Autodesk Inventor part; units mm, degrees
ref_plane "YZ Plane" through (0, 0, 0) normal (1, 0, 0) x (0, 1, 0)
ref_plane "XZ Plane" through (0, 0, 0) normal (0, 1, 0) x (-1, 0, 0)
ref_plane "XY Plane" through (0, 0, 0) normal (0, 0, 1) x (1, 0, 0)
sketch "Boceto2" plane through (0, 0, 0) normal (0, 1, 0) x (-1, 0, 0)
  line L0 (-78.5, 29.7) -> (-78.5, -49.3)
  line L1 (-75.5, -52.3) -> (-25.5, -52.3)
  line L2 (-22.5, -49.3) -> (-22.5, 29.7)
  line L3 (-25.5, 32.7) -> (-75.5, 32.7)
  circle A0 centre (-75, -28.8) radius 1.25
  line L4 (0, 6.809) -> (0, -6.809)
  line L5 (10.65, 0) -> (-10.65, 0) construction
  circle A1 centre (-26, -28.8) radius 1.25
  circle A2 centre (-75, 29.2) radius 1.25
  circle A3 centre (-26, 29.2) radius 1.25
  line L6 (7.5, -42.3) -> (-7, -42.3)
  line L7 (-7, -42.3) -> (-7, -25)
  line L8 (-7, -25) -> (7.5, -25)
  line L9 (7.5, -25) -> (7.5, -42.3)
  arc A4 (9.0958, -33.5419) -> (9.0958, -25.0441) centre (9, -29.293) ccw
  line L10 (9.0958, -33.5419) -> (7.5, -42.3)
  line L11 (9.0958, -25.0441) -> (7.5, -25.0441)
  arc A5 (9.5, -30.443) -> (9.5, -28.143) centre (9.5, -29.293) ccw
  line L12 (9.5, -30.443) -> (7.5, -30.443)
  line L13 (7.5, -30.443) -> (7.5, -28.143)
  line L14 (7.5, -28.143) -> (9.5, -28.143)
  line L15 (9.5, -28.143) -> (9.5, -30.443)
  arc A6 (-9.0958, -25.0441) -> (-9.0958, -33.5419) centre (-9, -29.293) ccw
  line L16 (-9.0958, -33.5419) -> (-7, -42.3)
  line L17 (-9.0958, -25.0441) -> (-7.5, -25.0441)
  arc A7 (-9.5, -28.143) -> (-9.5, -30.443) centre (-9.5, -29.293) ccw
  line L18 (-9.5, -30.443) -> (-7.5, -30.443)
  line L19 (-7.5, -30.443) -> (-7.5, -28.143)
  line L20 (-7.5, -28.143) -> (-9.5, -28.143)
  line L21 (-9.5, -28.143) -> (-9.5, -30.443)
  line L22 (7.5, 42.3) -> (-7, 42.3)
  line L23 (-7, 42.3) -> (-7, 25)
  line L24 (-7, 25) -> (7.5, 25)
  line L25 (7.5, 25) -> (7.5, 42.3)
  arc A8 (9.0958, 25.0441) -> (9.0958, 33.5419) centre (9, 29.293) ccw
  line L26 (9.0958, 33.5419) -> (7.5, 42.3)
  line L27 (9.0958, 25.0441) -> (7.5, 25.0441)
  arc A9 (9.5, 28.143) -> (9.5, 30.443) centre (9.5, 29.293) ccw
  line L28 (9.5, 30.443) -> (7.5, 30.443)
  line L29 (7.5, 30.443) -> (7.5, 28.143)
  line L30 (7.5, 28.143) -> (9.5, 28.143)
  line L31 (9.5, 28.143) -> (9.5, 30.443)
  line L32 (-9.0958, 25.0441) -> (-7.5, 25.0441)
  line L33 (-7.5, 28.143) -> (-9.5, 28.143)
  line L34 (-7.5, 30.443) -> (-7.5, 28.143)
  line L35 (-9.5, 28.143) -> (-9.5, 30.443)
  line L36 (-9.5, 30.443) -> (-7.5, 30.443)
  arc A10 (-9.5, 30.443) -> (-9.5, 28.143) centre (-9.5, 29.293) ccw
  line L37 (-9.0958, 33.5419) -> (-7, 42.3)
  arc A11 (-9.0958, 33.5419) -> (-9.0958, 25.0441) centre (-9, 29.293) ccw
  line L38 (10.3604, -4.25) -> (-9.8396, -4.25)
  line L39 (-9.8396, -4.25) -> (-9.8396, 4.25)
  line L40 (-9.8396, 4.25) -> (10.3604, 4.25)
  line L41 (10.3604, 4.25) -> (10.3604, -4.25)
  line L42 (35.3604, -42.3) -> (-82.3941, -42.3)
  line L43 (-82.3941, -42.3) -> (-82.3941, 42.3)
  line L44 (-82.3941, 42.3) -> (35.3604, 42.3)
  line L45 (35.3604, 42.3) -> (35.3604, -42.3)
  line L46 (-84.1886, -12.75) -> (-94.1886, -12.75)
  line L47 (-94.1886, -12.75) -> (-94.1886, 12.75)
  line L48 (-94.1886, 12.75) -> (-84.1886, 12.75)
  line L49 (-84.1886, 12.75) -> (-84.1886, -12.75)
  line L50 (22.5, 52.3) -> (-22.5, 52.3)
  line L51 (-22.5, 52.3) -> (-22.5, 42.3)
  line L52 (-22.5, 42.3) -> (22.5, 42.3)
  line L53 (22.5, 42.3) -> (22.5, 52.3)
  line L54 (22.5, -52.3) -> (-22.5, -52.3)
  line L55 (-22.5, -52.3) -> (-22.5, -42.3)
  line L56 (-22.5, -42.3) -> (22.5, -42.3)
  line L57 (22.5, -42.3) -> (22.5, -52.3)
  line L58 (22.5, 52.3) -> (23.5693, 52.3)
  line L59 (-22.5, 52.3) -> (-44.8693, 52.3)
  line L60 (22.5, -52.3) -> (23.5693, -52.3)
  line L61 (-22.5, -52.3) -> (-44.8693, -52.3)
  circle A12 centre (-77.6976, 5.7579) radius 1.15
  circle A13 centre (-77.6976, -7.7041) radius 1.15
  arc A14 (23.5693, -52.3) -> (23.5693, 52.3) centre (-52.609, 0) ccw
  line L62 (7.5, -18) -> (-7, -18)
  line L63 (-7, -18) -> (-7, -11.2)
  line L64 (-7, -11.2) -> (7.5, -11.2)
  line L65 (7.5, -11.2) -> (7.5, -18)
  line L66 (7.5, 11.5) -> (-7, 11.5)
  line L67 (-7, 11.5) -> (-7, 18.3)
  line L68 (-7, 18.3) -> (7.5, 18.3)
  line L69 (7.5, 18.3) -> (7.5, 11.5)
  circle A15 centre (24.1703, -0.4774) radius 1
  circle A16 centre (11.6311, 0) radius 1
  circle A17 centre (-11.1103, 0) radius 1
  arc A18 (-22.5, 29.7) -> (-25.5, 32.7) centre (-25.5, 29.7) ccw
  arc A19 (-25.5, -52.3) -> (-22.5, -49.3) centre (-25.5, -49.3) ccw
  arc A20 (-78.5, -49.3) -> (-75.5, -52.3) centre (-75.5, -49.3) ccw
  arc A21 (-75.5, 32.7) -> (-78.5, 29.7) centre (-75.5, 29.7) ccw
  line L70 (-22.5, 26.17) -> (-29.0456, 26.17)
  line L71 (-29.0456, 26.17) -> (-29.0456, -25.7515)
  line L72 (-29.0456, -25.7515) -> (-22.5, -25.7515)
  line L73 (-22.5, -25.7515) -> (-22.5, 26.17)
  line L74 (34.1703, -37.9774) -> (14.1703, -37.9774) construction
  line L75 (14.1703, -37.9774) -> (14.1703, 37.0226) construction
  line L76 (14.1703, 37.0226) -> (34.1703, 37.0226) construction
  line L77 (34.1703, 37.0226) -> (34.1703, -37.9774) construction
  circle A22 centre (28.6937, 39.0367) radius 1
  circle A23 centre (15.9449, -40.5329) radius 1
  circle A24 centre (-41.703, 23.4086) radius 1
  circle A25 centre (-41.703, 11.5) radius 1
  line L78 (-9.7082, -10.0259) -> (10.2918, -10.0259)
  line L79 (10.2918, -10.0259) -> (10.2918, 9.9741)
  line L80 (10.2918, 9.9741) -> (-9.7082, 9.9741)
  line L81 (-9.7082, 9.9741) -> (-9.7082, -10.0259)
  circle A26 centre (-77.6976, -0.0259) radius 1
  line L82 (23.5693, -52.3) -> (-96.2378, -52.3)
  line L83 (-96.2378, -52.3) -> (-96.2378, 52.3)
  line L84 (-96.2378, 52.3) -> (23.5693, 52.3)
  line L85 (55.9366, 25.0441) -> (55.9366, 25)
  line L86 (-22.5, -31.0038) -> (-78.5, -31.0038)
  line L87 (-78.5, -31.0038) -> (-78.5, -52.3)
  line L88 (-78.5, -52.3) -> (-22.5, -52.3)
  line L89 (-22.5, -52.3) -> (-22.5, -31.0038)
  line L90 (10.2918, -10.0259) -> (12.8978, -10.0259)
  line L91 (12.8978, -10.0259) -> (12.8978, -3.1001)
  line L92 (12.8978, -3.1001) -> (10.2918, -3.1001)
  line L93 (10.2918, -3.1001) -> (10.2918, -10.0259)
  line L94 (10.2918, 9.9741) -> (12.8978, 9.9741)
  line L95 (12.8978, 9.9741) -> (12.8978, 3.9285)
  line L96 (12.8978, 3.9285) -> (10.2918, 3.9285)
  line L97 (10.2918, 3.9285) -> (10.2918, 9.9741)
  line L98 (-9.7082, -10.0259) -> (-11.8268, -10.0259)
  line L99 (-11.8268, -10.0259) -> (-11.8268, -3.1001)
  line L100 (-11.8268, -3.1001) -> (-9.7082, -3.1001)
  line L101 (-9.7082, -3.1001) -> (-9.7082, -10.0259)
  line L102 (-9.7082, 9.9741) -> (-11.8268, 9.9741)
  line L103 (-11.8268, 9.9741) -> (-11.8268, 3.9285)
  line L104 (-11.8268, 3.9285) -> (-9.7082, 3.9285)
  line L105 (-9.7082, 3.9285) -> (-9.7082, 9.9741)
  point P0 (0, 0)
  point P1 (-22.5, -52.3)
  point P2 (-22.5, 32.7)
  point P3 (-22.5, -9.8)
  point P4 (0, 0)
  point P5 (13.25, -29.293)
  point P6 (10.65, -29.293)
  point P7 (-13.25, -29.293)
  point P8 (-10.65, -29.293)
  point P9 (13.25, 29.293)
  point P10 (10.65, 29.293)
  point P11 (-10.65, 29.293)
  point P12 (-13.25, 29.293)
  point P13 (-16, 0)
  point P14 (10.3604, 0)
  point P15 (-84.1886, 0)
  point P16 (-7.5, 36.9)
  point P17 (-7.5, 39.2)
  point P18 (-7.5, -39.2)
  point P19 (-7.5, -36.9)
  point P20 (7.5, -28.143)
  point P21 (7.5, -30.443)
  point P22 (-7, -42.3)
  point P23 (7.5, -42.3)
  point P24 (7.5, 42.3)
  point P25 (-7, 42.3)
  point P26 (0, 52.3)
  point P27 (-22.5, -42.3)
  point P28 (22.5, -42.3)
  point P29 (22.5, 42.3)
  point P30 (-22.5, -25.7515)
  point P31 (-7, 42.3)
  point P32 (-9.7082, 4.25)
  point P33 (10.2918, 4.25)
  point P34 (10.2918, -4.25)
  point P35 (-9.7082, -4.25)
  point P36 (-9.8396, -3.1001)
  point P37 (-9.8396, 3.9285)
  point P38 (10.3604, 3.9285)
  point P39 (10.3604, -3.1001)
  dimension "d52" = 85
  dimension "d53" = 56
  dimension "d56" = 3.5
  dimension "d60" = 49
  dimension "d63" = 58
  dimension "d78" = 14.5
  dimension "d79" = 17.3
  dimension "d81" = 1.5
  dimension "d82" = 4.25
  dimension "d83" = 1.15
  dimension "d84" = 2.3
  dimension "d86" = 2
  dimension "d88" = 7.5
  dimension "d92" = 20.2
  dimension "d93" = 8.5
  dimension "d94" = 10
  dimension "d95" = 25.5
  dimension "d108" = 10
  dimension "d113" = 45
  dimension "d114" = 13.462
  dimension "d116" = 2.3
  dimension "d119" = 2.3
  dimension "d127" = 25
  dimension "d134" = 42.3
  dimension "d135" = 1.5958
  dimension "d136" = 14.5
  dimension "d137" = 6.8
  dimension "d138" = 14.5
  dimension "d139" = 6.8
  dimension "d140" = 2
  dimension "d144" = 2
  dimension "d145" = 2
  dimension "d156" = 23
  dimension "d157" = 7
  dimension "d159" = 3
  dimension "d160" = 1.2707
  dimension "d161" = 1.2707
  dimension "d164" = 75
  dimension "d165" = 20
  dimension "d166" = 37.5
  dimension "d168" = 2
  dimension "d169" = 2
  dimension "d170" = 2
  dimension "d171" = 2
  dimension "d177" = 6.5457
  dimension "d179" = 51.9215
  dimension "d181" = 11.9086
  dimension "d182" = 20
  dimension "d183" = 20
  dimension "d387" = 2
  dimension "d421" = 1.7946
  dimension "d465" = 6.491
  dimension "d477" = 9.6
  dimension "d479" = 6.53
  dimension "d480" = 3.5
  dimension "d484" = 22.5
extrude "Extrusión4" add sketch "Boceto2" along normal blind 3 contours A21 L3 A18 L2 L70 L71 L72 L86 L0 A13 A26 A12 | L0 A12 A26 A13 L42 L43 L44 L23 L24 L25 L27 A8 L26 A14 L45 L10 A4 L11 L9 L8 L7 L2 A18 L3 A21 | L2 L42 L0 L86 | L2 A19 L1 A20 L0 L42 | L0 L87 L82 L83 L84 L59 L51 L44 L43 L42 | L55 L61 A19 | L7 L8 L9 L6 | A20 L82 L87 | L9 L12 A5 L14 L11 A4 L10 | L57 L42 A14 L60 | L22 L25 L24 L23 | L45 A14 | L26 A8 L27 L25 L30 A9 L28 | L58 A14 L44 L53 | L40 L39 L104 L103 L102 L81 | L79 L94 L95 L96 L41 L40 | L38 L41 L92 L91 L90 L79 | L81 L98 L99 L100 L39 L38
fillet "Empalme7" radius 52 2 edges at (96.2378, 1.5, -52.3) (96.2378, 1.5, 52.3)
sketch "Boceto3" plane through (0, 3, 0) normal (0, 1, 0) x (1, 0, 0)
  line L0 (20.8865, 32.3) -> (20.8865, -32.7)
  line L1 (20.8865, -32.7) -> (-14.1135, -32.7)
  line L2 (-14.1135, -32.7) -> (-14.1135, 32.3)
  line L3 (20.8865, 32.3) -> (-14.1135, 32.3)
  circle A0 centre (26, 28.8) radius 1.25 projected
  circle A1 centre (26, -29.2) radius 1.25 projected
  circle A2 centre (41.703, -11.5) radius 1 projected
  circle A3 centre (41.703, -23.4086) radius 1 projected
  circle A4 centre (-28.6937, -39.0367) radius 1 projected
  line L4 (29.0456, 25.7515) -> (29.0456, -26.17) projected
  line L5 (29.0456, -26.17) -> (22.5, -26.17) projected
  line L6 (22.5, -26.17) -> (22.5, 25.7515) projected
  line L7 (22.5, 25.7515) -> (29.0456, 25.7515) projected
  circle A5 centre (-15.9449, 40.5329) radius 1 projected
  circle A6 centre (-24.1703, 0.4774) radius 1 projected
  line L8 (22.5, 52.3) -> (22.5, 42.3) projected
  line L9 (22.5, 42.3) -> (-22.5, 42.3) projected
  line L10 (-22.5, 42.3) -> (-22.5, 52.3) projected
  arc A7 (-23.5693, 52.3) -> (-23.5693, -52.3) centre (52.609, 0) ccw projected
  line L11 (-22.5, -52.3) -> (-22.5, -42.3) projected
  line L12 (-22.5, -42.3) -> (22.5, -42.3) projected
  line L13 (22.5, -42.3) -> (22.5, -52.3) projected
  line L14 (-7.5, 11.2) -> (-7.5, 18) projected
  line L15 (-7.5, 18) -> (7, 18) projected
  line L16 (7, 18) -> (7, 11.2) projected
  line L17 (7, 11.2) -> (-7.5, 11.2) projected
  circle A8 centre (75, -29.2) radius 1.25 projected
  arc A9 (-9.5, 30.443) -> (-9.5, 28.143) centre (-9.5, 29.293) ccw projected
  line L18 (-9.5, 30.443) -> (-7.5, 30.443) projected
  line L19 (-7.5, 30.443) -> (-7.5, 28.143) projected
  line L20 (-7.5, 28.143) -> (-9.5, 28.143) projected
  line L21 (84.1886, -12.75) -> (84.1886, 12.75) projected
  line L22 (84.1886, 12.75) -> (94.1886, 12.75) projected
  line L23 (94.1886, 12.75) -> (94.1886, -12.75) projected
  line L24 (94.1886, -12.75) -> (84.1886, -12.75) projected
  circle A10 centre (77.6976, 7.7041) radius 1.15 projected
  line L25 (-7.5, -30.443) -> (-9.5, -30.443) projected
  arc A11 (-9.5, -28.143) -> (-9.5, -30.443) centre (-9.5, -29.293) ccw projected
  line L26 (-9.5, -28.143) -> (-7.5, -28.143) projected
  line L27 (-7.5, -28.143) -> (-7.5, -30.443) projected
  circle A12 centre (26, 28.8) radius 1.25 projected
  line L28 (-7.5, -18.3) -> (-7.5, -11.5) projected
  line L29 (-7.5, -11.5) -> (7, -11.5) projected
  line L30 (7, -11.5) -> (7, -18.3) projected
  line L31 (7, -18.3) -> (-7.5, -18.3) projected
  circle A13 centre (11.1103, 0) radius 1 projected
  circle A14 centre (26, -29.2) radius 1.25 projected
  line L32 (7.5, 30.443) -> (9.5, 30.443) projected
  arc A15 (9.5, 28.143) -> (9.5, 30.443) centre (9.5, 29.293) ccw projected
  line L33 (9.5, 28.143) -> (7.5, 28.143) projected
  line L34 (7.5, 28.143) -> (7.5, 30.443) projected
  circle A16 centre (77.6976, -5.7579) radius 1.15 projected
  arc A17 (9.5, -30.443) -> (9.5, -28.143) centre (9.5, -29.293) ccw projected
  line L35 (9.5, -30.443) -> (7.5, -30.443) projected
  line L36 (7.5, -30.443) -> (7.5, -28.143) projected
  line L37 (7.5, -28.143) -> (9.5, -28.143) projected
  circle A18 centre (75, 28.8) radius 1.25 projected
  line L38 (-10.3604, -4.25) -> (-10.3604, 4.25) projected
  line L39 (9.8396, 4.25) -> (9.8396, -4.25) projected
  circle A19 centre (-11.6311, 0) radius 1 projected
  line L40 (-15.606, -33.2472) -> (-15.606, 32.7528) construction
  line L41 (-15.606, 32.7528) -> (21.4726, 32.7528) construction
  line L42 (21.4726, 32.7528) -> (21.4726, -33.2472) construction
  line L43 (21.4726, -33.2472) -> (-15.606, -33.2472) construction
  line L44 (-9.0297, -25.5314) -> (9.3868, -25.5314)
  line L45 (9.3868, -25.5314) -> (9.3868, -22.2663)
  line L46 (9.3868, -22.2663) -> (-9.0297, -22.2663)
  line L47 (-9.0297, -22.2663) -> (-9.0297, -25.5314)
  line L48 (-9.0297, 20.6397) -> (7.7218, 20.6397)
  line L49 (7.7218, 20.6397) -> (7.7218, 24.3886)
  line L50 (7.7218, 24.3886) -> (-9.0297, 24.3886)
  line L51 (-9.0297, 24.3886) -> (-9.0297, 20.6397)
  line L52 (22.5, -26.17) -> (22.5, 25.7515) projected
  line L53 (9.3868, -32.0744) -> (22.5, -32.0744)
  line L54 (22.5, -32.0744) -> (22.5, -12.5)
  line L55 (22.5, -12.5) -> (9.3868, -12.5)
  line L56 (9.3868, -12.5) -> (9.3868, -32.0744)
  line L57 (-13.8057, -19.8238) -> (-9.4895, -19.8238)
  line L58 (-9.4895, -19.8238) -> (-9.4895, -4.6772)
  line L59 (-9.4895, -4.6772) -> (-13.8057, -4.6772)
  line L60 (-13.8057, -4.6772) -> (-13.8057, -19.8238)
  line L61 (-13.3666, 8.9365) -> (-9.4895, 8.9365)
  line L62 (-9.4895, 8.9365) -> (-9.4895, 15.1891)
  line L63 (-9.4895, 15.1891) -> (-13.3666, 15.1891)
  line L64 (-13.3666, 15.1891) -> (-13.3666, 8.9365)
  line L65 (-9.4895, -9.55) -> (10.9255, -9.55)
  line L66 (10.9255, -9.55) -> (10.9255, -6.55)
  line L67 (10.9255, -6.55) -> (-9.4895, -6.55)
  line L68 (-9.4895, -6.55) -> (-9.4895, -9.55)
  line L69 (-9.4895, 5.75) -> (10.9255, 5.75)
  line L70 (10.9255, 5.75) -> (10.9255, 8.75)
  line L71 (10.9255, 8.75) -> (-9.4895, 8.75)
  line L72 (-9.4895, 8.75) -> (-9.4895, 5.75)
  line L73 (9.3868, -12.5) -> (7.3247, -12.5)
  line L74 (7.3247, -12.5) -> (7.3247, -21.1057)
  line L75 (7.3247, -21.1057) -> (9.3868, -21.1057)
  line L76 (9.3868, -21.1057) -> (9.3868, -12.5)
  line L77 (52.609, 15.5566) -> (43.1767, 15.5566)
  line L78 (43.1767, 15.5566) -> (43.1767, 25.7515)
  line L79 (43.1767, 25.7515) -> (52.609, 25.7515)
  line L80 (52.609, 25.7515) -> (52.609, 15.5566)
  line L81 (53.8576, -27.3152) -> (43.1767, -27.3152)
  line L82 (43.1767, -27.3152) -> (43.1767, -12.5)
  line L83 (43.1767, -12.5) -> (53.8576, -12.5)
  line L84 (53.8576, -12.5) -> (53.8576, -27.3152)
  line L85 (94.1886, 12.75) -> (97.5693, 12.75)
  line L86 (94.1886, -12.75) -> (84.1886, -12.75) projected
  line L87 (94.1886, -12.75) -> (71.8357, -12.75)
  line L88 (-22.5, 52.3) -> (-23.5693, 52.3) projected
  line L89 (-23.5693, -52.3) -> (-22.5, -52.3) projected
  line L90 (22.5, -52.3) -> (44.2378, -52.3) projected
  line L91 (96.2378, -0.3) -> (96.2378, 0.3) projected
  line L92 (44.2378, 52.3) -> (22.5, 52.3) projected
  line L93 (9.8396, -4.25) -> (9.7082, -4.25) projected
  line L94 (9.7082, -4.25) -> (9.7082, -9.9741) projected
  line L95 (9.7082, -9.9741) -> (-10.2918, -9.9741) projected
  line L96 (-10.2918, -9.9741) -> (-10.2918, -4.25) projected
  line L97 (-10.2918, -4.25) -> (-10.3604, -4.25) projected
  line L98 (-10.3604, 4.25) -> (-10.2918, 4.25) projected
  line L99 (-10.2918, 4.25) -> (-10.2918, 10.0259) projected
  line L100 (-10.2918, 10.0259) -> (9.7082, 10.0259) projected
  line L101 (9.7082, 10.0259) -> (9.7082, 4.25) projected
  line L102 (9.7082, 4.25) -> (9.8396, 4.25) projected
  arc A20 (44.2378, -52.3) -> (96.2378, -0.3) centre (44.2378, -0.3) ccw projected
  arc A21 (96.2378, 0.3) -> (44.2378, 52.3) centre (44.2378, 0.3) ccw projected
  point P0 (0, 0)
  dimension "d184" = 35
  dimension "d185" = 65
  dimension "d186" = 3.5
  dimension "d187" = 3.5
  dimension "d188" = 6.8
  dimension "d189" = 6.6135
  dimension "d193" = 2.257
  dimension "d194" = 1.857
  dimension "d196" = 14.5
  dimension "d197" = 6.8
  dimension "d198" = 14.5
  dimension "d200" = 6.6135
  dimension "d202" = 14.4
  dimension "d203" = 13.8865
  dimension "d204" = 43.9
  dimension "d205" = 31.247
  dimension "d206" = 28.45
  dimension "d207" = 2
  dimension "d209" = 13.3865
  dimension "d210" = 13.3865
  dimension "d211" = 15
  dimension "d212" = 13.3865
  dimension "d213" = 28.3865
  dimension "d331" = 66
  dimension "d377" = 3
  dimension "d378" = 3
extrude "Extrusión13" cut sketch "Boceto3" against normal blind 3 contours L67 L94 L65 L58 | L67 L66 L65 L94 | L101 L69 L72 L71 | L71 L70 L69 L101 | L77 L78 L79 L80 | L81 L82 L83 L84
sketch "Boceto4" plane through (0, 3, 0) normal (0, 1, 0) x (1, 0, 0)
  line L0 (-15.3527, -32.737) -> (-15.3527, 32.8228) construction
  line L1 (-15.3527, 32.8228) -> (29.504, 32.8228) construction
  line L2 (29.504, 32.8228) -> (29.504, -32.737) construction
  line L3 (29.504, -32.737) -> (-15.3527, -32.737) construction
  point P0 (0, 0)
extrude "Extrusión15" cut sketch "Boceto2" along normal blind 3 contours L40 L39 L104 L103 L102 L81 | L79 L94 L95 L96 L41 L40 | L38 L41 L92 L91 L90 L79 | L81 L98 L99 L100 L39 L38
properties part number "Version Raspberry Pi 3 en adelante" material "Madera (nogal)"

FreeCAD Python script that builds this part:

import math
import FreeCAD as App
import Part
import Sketcher
Q = App.Units.Quantity


def edges_at(feature, points):
    """Names of the edges that pass closest to the given points."""
    edges = feature.Shape.Edges
    near = lambda p: min(range(len(edges)), key=lambda i: edges[i].distToShape(Part.Vertex(*p))[0])
    return sorted({f"Edge{near(p) + 1}" for p in points})

doc = App.newDocument("Part")
params = doc.addObject("Spreadsheet::Sheet", "Params")
for row, (alias, value) in enumerate([
    ("sketch1_diameter", "2 mm"),
    ("sketch1_diameter2", "2.3 mm"),
    ("sketch1_width", "45 mm"),
    ("sketch1_width2", "2 mm"),
    ("sketch1_width3", "20 mm"),
    ("pad1_length", "3 mm"),
    ("fillet_radius", "52 mm"),
    ("sketch2_height", "3 mm"),
    ("pocket1_length", "3 mm"),
    ("sketch3_height", "1.15 mm"),
    ("pocket2_length", "3 mm"),
], start=1):
    params.set(f"A{row}", alias)
    params.set(f"B{row}", "=" + value)
    params.setAlias(f"B{row}", alias)

body = doc.addObject("PartDesign::Body", "Body")

sketch1 = body.newObject("Sketcher::SketchObject", "Sketch")
sketch1.AttachmentSupport = (doc.getObject("XZ_Plane"), [""])
sketch1.MapMode = "FlatFace"
sketch1.addGeometry([
    Part.LineSegment(App.Vector(22.5, 42.3, 0), App.Vector(22.5, 52.3, 0)),
    Part.LineSegment(App.Vector(22.5, 52.3, 0), App.Vector(96.24, 52.3, 0)),
    Part.LineSegment(App.Vector(96.24, 52.3, 0), App.Vector(96.24, -52.3, 0)),
    Part.LineSegment(App.Vector(96.24, -52.3, 0), App.Vector(22.5, -52.3, 0)),
    Part.LineSegment(App.Vector(22.5, -52.3, 0), App.Vector(22.5, -42.3, 0)),
    Part.LineSegment(App.Vector(22.5, -42.3, 0), App.Vector(-22.5, -42.3, 0)),
    Part.LineSegment(App.Vector(-22.5, -42.3, 0), App.Vector(-22.5, -52.3, 0)),
    Part.LineSegment(App.Vector(-22.5, -52.3, 0), App.Vector(-23.57, -52.3, 0)),
    Part.ArcOfCircle(Part.Circle(App.Vector(52.61, 0, 0), App.Vector(0, 0, 1), 92.4), math.radians(146), math.radians(214)),
    Part.LineSegment(App.Vector(-23.57, 52.3, 0), App.Vector(-22.5, 52.3, 0)),
    Part.LineSegment(App.Vector(-22.5, 52.3, 0), App.Vector(-22.5, 42.3, 0)),
    Part.LineSegment(App.Vector(-22.5, 42.3, 0), App.Vector(22.5, 42.3, 0)),
    Part.LineSegment(App.Vector(29.05, 26.17, 0), App.Vector(22.5, 26.17, 0)),
    Part.LineSegment(App.Vector(22.5, 26.17, 0), App.Vector(22.5, -25.75, 0)),
    Part.LineSegment(App.Vector(22.5, -25.75, 0), App.Vector(29.05, -25.75, 0)),
    Part.LineSegment(App.Vector(29.05, -25.75, 0), App.Vector(29.05, 26.17, 0)),
    Part.Circle(App.Vector(77.7, -7.7, 0), App.Vector(0, 0, 1), 1.15),
    Part.Circle(App.Vector(77.7, -0.03, 0), App.Vector(0, 0, 1), 1),
    Part.Circle(App.Vector(77.7, 5.76, 0), App.Vector(0, 0, 1), 1.15),
    Part.Circle(App.Vector(75, -28.8, 0), App.Vector(0, 0, 1), 1.25),
    Part.Circle(App.Vector(26, -28.8, 0), App.Vector(0, 0, 1), 1.25),
    Part.Circle(App.Vector(41.7, 11.5, 0), App.Vector(0, 0, 1), 1),
    Part.Circle(App.Vector(41.7, 23.41, 0), App.Vector(0, 0, 1), 1),
    Part.Circle(App.Vector(75, 29.2, 0), App.Vector(0, 0, 1), 1.25),
    Part.Circle(App.Vector(26, 29.2, 0), App.Vector(0, 0, 1), 1.25),
    Part.LineSegment(App.Vector(-7.5, 18.3, 0), App.Vector(-7.5, 11.5, 0)),
    Part.LineSegment(App.Vector(-7.5, 11.5, 0), App.Vector(7, 11.5, 0)),
    Part.LineSegment(App.Vector(7, 11.5, 0), App.Vector(7, 18.3, 0)),
    Part.LineSegment(App.Vector(7, 18.3, 0), App.Vector(-7.5, 18.3, 0)),
    Part.LineSegment(App.Vector(7.5, 30.44, 0), App.Vector(7.5, 28.14, 0)),
    Part.LineSegment(App.Vector(7.5, 28.14, 0), App.Vector(9.5, 28.14, 0)),
    Part.ArcOfCircle(Part.Circle(App.Vector(9.5, 29.29, 0), App.Vector(0, 0, 1), 1.15), math.radians(-90), math.radians(90)),
    Part.LineSegment(App.Vector(9.5, 30.44, 0), App.Vector(7.5, 30.44, 0)),
    Part.Circle(App.Vector(-28.69, 39.04, 0), App.Vector(0, 0, 1), 1),
    Part.ArcOfCircle(Part.Circle(App.Vector(9.5, -29.29, 0), App.Vector(0, 0, 1), 1.15), math.radians(-90), math.radians(90)),
    Part.LineSegment(App.Vector(9.5, -28.14, 0), App.Vector(7.5, -28.14, 0)),
    Part.LineSegment(App.Vector(7.5, -28.14, 0), App.Vector(7.5, -30.44, 0)),
    Part.LineSegment(App.Vector(7.5, -30.44, 0), App.Vector(9.5, -30.44, 0)),
    Part.Circle(App.Vector(-15.94, -40.53, 0), App.Vector(0, 0, 1), 1),
    Part.LineSegment(App.Vector(-7.5, -11.2, 0), App.Vector(-7.5, -18, 0)),
    Part.LineSegment(App.Vector(-7.5, -18, 0), App.Vector(7, -18, 0)),
    Part.LineSegment(App.Vector(7, -18, 0), App.Vector(7, -11.2, 0)),
    Part.LineSegment(App.Vector(7, -11.2, 0), App.Vector(-7.5, -11.2, 0)),
    Part.Circle(App.Vector(11.11, 0, 0), App.Vector(0, 0, 1), 1),
    Part.LineSegment(App.Vector(9.84, 4.25, 0), App.Vector(9.71, 4.25, 0)),
    Part.LineSegment(App.Vector(9.71, 4.25, 0), App.Vector(9.71, 9.97, 0)),
    Part.LineSegment(App.Vector(9.71, 9.97, 0), App.Vector(-10.29, 9.97, 0)),
    Part.LineSegment(App.Vector(-10.29, 9.97, 0), App.Vector(-10.29, 4.25, 0)),
    Part.LineSegment(App.Vector(-10.29, 4.25, 0), App.Vector(-10.36, 4.25, 0)),
    Part.LineSegment(App.Vector(-10.36, 4.25, 0), App.Vector(-10.36, -4.25, 0)),
    Part.LineSegment(App.Vector(-10.36, -4.25, 0), App.Vector(-10.29, -4.25, 0)),
    Part.LineSegment(App.Vector(-10.29, -4.25, 0), App.Vector(-10.29, -10.03, 0)),
    Part.LineSegment(App.Vector(-10.29, -10.03, 0), App.Vector(9.71, -10.03, 0)),
    Part.LineSegment(App.Vector(9.71, -10.03, 0), App.Vector(9.71, -4.25, 0)),
    Part.LineSegment(App.Vector(9.71, -4.25, 0), App.Vector(9.84, -4.25, 0)),
    Part.LineSegment(App.Vector(9.84, -4.25, 0), App.Vector(9.84, 4.25, 0)),
    Part.Circle(App.Vector(-11.63, 0, 0), App.Vector(0, 0, 1), 1),
    Part.Circle(App.Vector(-24.17, -0.48, 0), App.Vector(0, 0, 1), 1),
    Part.LineSegment(App.Vector(94.19, 12.75, 0), App.Vector(84.19, 12.75, 0)),
    Part.LineSegment(App.Vector(84.19, 12.75, 0), App.Vector(84.19, -12.75, 0)),
    Part.LineSegment(App.Vector(84.19, -12.75, 0), App.Vector(94.19, -12.75, 0)),
    Part.LineSegment(App.Vector(94.19, -12.75, 0), App.Vector(94.19, 12.75, 0)),
    Part.LineSegment(App.Vector(-7.5, 28.14, 0), App.Vector(-7.5, 30.44, 0)),
    Part.LineSegment(App.Vector(-7.5, 30.44, 0), App.Vector(-9.5, 30.44, 0)),
    Part.ArcOfCircle(Part.Circle(App.Vector(-9.5, 29.29, 0), App.Vector(0, 0, 1), 1.15), math.radians(90), math.radians(270)),
    Part.LineSegment(App.Vector(-9.5, 28.14, 0), App.Vector(-7.5, 28.14, 0)),
    Part.LineSegment(App.Vector(-9.5, -30.44, 0), App.Vector(-7.5, -30.44, 0)),
    Part.LineSegment(App.Vector(-7.5, -30.44, 0), App.Vector(-7.5, -28.14, 0)),
    Part.LineSegment(App.Vector(-7.5, -28.14, 0), App.Vector(-9.5, -28.14, 0)),
    Part.ArcOfCircle(Part.Circle(App.Vector(-9.5, -29.29, 0), App.Vector(0, 0, 1), 1.15), math.radians(90), math.radians(270)),
], False)
sketch1.addConstraint([
    Sketcher.Constraint("Coincident", 0, 2, 1, 1),
    Sketcher.Constraint("Coincident", 1, 2, 2, 1),
    Sketcher.Constraint("Coincident", 2, 2, 3, 1),
    Sketcher.Constraint("Coincident", 3, 2, 4, 1),
    Sketcher.Constraint("Coincident", 4, 2, 5, 1),
    Sketcher.Constraint("Coincident", 5, 2, 6, 1),
    Sketcher.Constraint("Coincident", 6, 2, 7, 1),
    Sketcher.Constraint("Coincident", 7, 2, 8, 2),
    Sketcher.Constraint("Coincident", 8, 1, 9, 1),
    Sketcher.Constraint("Coincident", 9, 2, 10, 1),
    Sketcher.Constraint("Coincident", 10, 2, 11, 1),
    Sketcher.Constraint("Coincident", 11, 2, 0, 1),
    Sketcher.Constraint("Coincident", 12, 2, 13, 1),
    Sketcher.Constraint("Coincident", 13, 2, 14, 1),
    Sketcher.Constraint("Coincident", 14, 2, 15, 1),
    Sketcher.Constraint("Coincident", 15, 2, 12, 1),
    Sketcher.Constraint("Coincident", 25, 2, 26, 1),
    Sketcher.Constraint("Coincident", 26, 2, 27, 1),
    Sketcher.Constraint("Coincident", 27, 2, 28, 1),
    Sketcher.Constraint("Coincident", 28, 2, 25, 1),
    Sketcher.Constraint("Coincident", 29, 2, 30, 1),
    Sketcher.Constraint("Tangent", 30, 2, 31, 1),
    Sketcher.Constraint("Tangent", 31, 2, 32, 1),
    Sketcher.Constraint("Coincident", 32, 2, 29, 1),
    Sketcher.Constraint("Tangent", 34, 2, 35, 1),
    Sketcher.Constraint("Coincident", 35, 2, 36, 1),
    Sketcher.Constraint("Coincident", 36, 2, 37, 1),
    Sketcher.Constraint("Tangent", 37, 2, 34, 1),
    Sketcher.Constraint("Coincident", 39, 2, 40, 1),
    Sketcher.Constraint("Coincident", 40, 2, 41, 1),
    Sketcher.Constraint("Coincident", 41, 2, 42, 1),
    Sketcher.Constraint("Coincident", 42, 2, 39, 1),
    Sketcher.Constraint("Coincident", 44, 2, 45, 1),
    Sketcher.Constraint("Coincident", 45, 2, 46, 1),
    Sketcher.Constraint("Coincident", 46, 2, 47, 1),
    Sketcher.Constraint("Coincident", 47, 2, 48, 1),
    Sketcher.Constraint("Coincident", 48, 2, 49, 1),
    Sketcher.Constraint("Coincident", 49, 2, 50, 1),
    Sketcher.Constraint("Coincident", 50, 2, 51, 1),
    Sketcher.Constraint("Coincident", 51, 2, 52, 1),
    Sketcher.Constraint("Coincident", 52, 2, 53, 1),
    Sketcher.Constraint("Coincident", 53, 2, 54, 1),
    Sketcher.Constraint("Coincident", 54, 2, 55, 1),
    Sketcher.Constraint("Coincident", 55, 2, 44, 1),
    Sketcher.Constraint("Coincident", 58, 2, 59, 1),
    Sketcher.Constraint("Coincident", 59, 2, 60, 1),
    Sketcher.Constraint("Coincident", 60, 2, 61, 1),
    Sketcher.Constraint("Coincident", 61, 2, 58, 1),
    Sketcher.Constraint("Coincident", 62, 2, 63, 1),
    Sketcher.Constraint("Tangent", 63, 2, 64, 1),
    Sketcher.Constraint("Tangent", 64, 2, 65, 1),
    Sketcher.Constraint("Coincident", 65, 2, 62, 1),
    Sketcher.Constraint("Coincident", 66, 2, 67, 1),
    Sketcher.Constraint("Coincident", 67, 2, 68, 1),
    Sketcher.Constraint("Tangent", 68, 2, 69, 1),
    Sketcher.Constraint("Tangent", 69, 2, 66, 1),
    Sketcher.Constraint("Vertical", 0),
    Sketcher.Constraint("Horizontal", 1),
    Sketcher.Constraint("Vertical", 2),
    Sketcher.Constraint("Horizontal", 3),
    Sketcher.Constraint("Vertical", 4),
    Sketcher.Constraint("Horizontal", 5),
    Sketcher.Constraint("Vertical", 6),
    Sketcher.Constraint("Horizontal", 7),
    Sketcher.Constraint("Horizontal", 9),
    Sketcher.Constraint("Vertical", 10),
    Sketcher.Constraint("Horizontal", 11),
    Sketcher.Constraint("Horizontal", 12),
    Sketcher.Constraint("Vertical", 13),
    Sketcher.Constraint("Horizontal", 14),
    Sketcher.Constraint("Vertical", 15),
    Sketcher.Constraint("Vertical", 25),
    Sketcher.Constraint("Horizontal", 26),
    Sketcher.Constraint("Vertical", 27),
    Sketcher.Constraint("Horizontal", 28),
    Sketcher.Constraint("Vertical", 29),
    Sketcher.Constraint("Horizontal", 30),
    Sketcher.Constraint("Horizontal", 32),
    Sketcher.Constraint("Horizontal", 35),
    Sketcher.Constraint("Vertical", 36),
    Sketcher.Constraint("Horizontal", 37),
    Sketcher.Constraint("Vertical", 39),
    Sketcher.Constraint("Horizontal", 40),
    Sketcher.Constraint("Vertical", 41),
    Sketcher.Constraint("Horizontal", 42),
    Sketcher.Constraint("Horizontal", 44),
    Sketcher.Constraint("Vertical", 45),
    Sketcher.Constraint("Horizontal", 46),
    Sketcher.Constraint("Vertical", 47),
    Sketcher.Constraint("Horizontal", 48),
    Sketcher.Constraint("Vertical", 49),
    Sketcher.Constraint("Horizontal", 50),
    Sketcher.Constraint("Vertical", 51),
    Sketcher.Constraint("Horizontal", 52),
    Sketcher.Constraint("Vertical", 53),
    Sketcher.Constraint("Horizontal", 54),
    Sketcher.Constraint("Vertical", 55),
    Sketcher.Constraint("Horizontal", 58),
    Sketcher.Constraint("Vertical", 59),
    Sketcher.Constraint("Horizontal", 60),
    Sketcher.Constraint("Vertical", 61),
    Sketcher.Constraint("Vertical", 62),
    Sketcher.Constraint("Horizontal", 63),
    Sketcher.Constraint("Horizontal", 65),
    Sketcher.Constraint("Horizontal", 66),
    Sketcher.Constraint("Vertical", 67),
    Sketcher.Constraint("Horizontal", 68),
    Sketcher.Constraint("Equal", 16, 18),
    Sketcher.Constraint("Equal", 19, 20),
    Sketcher.Constraint("Equal", 17, 21),
    Sketcher.Constraint("Equal", 21, 22),
    Sketcher.Constraint("Equal", 20, 23),
    Sketcher.Constraint("Equal", 23, 24),
    Sketcher.Constraint("Equal", 18, 31),
    Sketcher.Constraint("Equal", 22, 33),
    Sketcher.Constraint("Equal", 31, 34),
    Sketcher.Constraint("Equal", 33, 38),
    Sketcher.Constraint("Equal", 38, 43),
    Sketcher.Constraint("Equal", 43, 56),
    Sketcher.Constraint("Equal", 56, 57),
    Sketcher.Constraint("Equal", 34, 64),
    Sketcher.Constraint("Equal", 64, 69),
    Sketcher.Constraint("Symmetric", 34, 3, 64, 3, -1, 1),
    Sketcher.Constraint("Symmetric", 31, 3, 69, 3, -1, 1),
    Sketcher.Constraint("Symmetric", 0, 2, 6, 2, -1, 1),
    Sketcher.Constraint("Symmetric", 3, 2, 9, 2, -1, 1),
    Sketcher.Constraint("Symmetric", 31, 3, 64, 3, -2),
    Sketcher.Constraint("Symmetric", 3, 2, 6, 2, -2),
    Sketcher.Constraint("Symmetric", 47, 2, 50, 2, -1),
    Sketcher.Constraint("Symmetric", 44, 2, 53, 2, -1),
    Sketcher.Constraint("PointOnObject", 8, 3, -1),
    Sketcher.Constraint("PointOnObject", 43, 3, -1),
    Sketcher.Constraint("PointOnObject", 56, 3, -1),
    Sketcher.Constraint("Horizontal", 19, 3, 20, 3),
    Sketcher.Constraint("Horizontal", 23, 3, 24, 3),
    Sketcher.Constraint("Horizontal", 21, 3, 25, 2),
    Sketcher.Constraint("Horizontal", 44, 2, 47, 2),
    Sketcher.Constraint("Vertical", 16, 3, 17, 3),
    Sketcher.Constraint("Vertical", 17, 3, 18, 3),
    Sketcher.Constraint("Vertical", 21, 3, 22, 3),
    Sketcher.Constraint("Vertical", 19, 3, 23, 3),
    Sketcher.Constraint("Vertical", 20, 3, 24, 3),
    Sketcher.Constraint("Vertical", 11, 2, 12, 2),
    Sketcher.Constraint("Vertical", 32, 2, 35, 2),
    Sketcher.Constraint("Vertical", 28, 2, 39, 2),
    Sketcher.Constraint("Vertical", 27, 2, 40, 2),
    Sketcher.Constraint("Vertical", 42, 2, 62, 2),
    Sketcher.Constraint("Vertical", 65, 2, 66, 2),
    Sketcher.Constraint("Equal", 37, 63),
    Sketcher.Constraint("Equal", 60, 0),
    Sketcher.Constraint("Equal", 0, 4),
    Sketcher.Constraint("Equal", 27, 39),
    Sketcher.Constraint("Diameter", 17, Q("2 mm")),
    Sketcher.Constraint("Diameter", 16, Q("2.3 mm")),
    Sketcher.Constraint("DistanceX", 5, 2, 5, 1, Q("45 mm")),
    Sketcher.Constraint("DistanceX", 30, 1, 30, 2, Q("2 mm")),
    Sketcher.Constraint("DistanceX", 46, 2, 46, 1, Q("20 mm")),
    Sketcher.Constraint("DistanceX", 58, 2, 58, 1, Q("10 mm")),
    Sketcher.Constraint("DistanceX", 26, 1, 26, 2, Q("14.5 mm")),
    Sketcher.Constraint("DistanceY", 25, 2, 25, 1, Q("6.8 mm")),
    Sketcher.Constraint("DistanceY", 49, 2, 49, 1, Q("8.5 mm")),
    Sketcher.Constraint("DistanceY", 59, 2, 59, 1, Q("25.5 mm")),
    Sketcher.Constraint("DistanceX", -1, 1, 19, 3, Q("75 mm")),
    Sketcher.Constraint("DistanceX", -1, 1, 26, 2, Q("7 mm")),
    Sketcher.Constraint("Diameter", 19, Q("2.5 mm")),
    Sketcher.Constraint("DistanceY", 4, 2, -1, 1, Q("42.3 mm")),
    Sketcher.Constraint("DistanceX", 12, 2, 12, 1, Q("6.5456 mm")),
    Sketcher.Constraint("DistanceY", 13, 2, 13, 1, Q("51.9215 mm")),
    Sketcher.Constraint("DistanceX", -1, 1, 20, 3, Q("26 mm")),
    Sketcher.Constraint("DistanceY", 39, 2, -1, 1, Q("18 mm")),
    Sketcher.Constraint("DistanceY", 19, 3, -1, 1, Q("28.8 mm")),
    Sketcher.Constraint("DistanceY", -1, 1, 21, 3, Q("11.5 mm")),
    Sketcher.Constraint("DistanceY", -1, 1, 23, 3, Q("29.2 mm")),
    Sketcher.Constraint("Radius", 8, Q("92.4036 mm")),
    Sketcher.Constraint("DistanceY", 45, 1, 45, 2, Q("5.724 mm")),
    Sketcher.Constraint("DistanceY", 51, 2, 51, 1, Q("5.776 mm")),
    Sketcher.Constraint("DistanceY", -1, 1, 12, 2, Q("26.17 mm")),
    Sketcher.Constraint("DistanceY", -1, 1, 58, 2, Q("12.75 mm")),
    Sketcher.Constraint("DistanceX", 1, 1, 1, 2, Q("73.7378 mm")),
    Sketcher.Constraint("DistanceX", 7, 2, 7, 1, Q("1.0693 mm")),
    Sketcher.Constraint("DistanceX", 44, 2, 44, 1, Q("0.1314 mm")),
    Sketcher.Constraint("DistanceX", 48, 2, 48, 1, Q("0.0686 mm")),
    Sketcher.Constraint("DistanceY", 16, 3, -1, 1, Q("7.704 mm")),
    Sketcher.Constraint("DistanceY", 17, 3, -1, 1, Q("0.026 mm")),
    Sketcher.Constraint("DistanceY", -1, 1, 18, 3, Q("5.758 mm")),
    Sketcher.Constraint("DistanceX", -1, 1, 21, 3, Q("41.703 mm")),
    Sketcher.Constraint("DistanceY", -1, 1, 31, 3, Q("29.293 mm")),
    Sketcher.Constraint("DistanceX", 38, 3, -1, 1, Q("15.945 mm")),
    Sketcher.Constraint("DistanceY", 38, 3, -1, 1, Q("40.533 mm")),
    Sketcher.Constraint("DistanceX", 56, 3, -1, 1, Q("11.631 mm")),
    Sketcher.Constraint("DistanceX", -1, 1, 16, 3, Q("77.6976 mm")),
    Sketcher.Constraint("DistanceY", -1, 1, 22, 3, Q("23.4086 mm")),
    Sketcher.Constraint("DistanceX", 33, 3, -1, 1, Q("28.6937 mm")),
    Sketcher.Constraint("DistanceY", -1, 1, 33, 3, Q("39.0367 mm")),
    Sketcher.Constraint("DistanceX", -1, 1, 43, 3, Q("11.1103 mm")),
    Sketcher.Constraint("DistanceX", 57, 3, -1, 1, Q("24.1703 mm")),
    Sketcher.Constraint("DistanceY", 57, 3, -1, 1, Q("0.4774 mm")),
    Sketcher.Constraint("DistanceX", -1, 1, 44, 2, Q("9.7082 mm")),
    Sketcher.Constraint("DistanceX", -1, 1, 58, 2, Q("84.1886 mm")),
])
sketch1.setExpression("Constraints[152]", "Params.sketch1_diameter")
sketch1.setExpression("Constraints[153]", "Params.sketch1_diameter2")
sketch1.setExpression("Constraints[154]", "Params.sketch1_width")
sketch1.setExpression("Constraints[155]", "Params.sketch1_width2")
sketch1.setExpression("Constraints[156]", "Params.sketch1_width3")
pad1 = body.newObject("PartDesign::Pad", "Pad")
pad1.Profile = sketch1
pad1.setExpression("Length", "Params.pad1_length")
pad1.Reversed = True
doc.recompute()

fillet = body.newObject("PartDesign::Fillet", "Fillet")
fillet.Base = (pad1, edges_at(pad1, [(96.238, 1.5, -52.3), (96.238, 1.5, 52.3)]))
fillet.setExpression("Radius", "Params.fillet_radius")

sketch2 = body.newObject("Sketcher::SketchObject", "Sketch001")
sketch2.AttachmentSupport = (doc.getObject("XZ_Plane"), [""])
sketch2.MapMode = "FlatFace"
sketch2.AttachmentOffset = App.Placement(App.Vector(0, 0, -3), App.Rotation())
sketch2.addGeometry([
    Part.LineSegment(App.Vector(-9.5, 6.5, 0), App.Vector(-9.5, 9.6, 0)),
    Part.LineSegment(App.Vector(-9.5, 9.6, 0), App.Vector(10.9, 9.6, 0)),
    Part.LineSegment(App.Vector(10.9, 9.6, 0), App.Vector(10.9, 6.5, 0)),
    Part.LineSegment(App.Vector(10.9, 6.5, 0), App.Vector(-9.5, 6.5, 0)),
    Part.LineSegment(App.Vector(-9.5, -5.8, 0), App.Vector(10.9, -5.8, 0)),
    Part.LineSegment(App.Vector(10.9, -5.8, 0), App.Vector(10.9, -8.8, 0)),
    Part.LineSegment(App.Vector(10.9, -8.8, 0), App.Vector(-9.5, -8.8, 0)),
    Part.LineSegment(App.Vector(-9.5, -8.8, 0), App.Vector(-9.5, -5.8, 0)),
    Part.LineSegment(App.Vector(43.2, -15.6, 0), App.Vector(52.6, -15.6, 0)),
    Part.LineSegment(App.Vector(52.6, -15.6, 0), App.Vector(52.6, -25.8, 0)),
    Part.LineSegment(App.Vector(52.6, -25.8, 0), App.Vector(43.2, -25.8, 0)),
    Part.LineSegment(App.Vector(43.2, -25.8, 0), App.Vector(43.2, -15.6, 0)),
    Part.LineSegment(App.Vector(43.2, 27.3, 0), App.Vector(53.9, 27.3, 0)),
    Part.LineSegment(App.Vector(53.9, 27.3, 0), App.Vector(53.9, 12.5, 0)),
    Part.LineSegment(App.Vector(53.9, 12.5, 0), App.Vector(43.2, 12.5, 0)),
    Part.LineSegment(App.Vector(43.2, 12.5, 0), App.Vector(43.2, 27.3, 0)),
], False)
sketch2.addConstraint([
    Sketcher.Constraint("Coincident", 0, 2, 1, 1),
    Sketcher.Constraint("Coincident", 1, 2, 2, 1),
    Sketcher.Constraint("Coincident", 2, 2, 3, 1),
    Sketcher.Constraint("Coincident", 3, 2, 0, 1),
    Sketcher.Constraint("Coincident", 4, 2, 5, 1),
    Sketcher.Constraint("Coincident", 5, 2, 6, 1),
    Sketcher.Constraint("Coincident", 6, 2, 7, 1),
    Sketcher.Constraint("Coincident", 7, 2, 4, 1),
    Sketcher.Constraint("Coincident", 8, 2, 9, 1),
    Sketcher.Constraint("Coincident", 9, 2, 10, 1),
    Sketcher.Constraint("Coincident", 10, 2, 11, 1),
    Sketcher.Constraint("Coincident", 11, 2, 8, 1),
    Sketcher.Constraint("Coincident", 12, 2, 13, 1),
    Sketcher.Constraint("Coincident", 13, 2, 14, 1),
    Sketcher.Constraint("Coincident", 14, 2, 15, 1),
    Sketcher.Constraint("Coincident", 15, 2, 12, 1),
    Sketcher.Constraint("Vertical", 0),
    Sketcher.Constraint("Horizontal", 1),
    Sketcher.Constraint("Vertical", 2),
    Sketcher.Constraint("Horizontal", 3),
    Sketcher.Constraint("Horizontal", 4),
    Sketcher.Constraint("Vertical", 5),
    Sketcher.Constraint("Horizontal", 6),
    Sketcher.Constraint("Vertical", 7),
    Sketcher.Constraint("Horizontal", 8),
    Sketcher.Constraint("Vertical", 9),
    Sketcher.Constraint("Horizontal", 10),
    Sketcher.Constraint("Vertical", 11),
    Sketcher.Constraint("Horizontal", 12),
    Sketcher.Constraint("Vertical", 13),
    Sketcher.Constraint("Horizontal", 14),
    Sketcher.Constraint("Vertical", 15),
    Sketcher.Constraint("Vertical", 2, 2, 4, 2),
    Sketcher.Constraint("Vertical", 3, 2, 6, 2),
    Sketcher.Constraint("Vertical", 11, 2, 14, 2),
    Sketcher.Constraint("Equal", 2, 5),
    Sketcher.Constraint("DistanceY", 0, 1, 0, 2, Q("3 mm")),
    Sketcher.Constraint("DistanceY", -1, 1, 13, 2, Q("12.5 mm")),
    Sketcher.Constraint("DistanceY", 4, 2, 2, 2, Q("12.3 mm")),
    Sketcher.Constraint("DistanceX", 1, 1, 1, 2, Q("20.415 mm")),
    Sketcher.Constraint("DistanceX", 12, 1, 12, 2, Q("10.681 mm")),
    Sketcher.Constraint("DistanceY", 9, 2, 9, 1, Q("10.195 mm")),
    Sketcher.Constraint("DistanceY", -1, 1, 0, 2, Q("9.55 mm")),
    Sketcher.Constraint("DistanceX", 8, 1, 8, 2, Q("9.4323 mm")),
    Sketcher.Constraint("DistanceY", 13, 2, 13, 1, Q("14.8152 mm")),
    Sketcher.Constraint("DistanceX", -1, 1, 8, 2, Q("52.609 mm")),
    Sketcher.Constraint("DistanceX", 1, 2, 12, 2, Q("42.932 mm")),
    Sketcher.Constraint("DistanceY", 8, 2, -1, 1, Q("15.5566 mm")),
])
sketch2.setExpression("Constraints[36]", "Params.sketch2_height")
pocket1 = body.newObject("PartDesign::Pocket", "Pocket")
pocket1.Profile = sketch2
pocket1.setExpression("Length", "Params.pocket1_length")
pocket1.Reversed = True

sketch3 = body.newObject("Sketcher::SketchObject", "Sketch002")
sketch3.AttachmentSupport = (doc.getObject("XZ_Plane"), [""])
sketch3.MapMode = "FlatFace"
sketch3.addGeometry([
    Part.LineSegment(App.Vector(9.84, 4.25, 0), App.Vector(9.71, 4.25, 0)),
    Part.LineSegment(App.Vector(9.71, 4.25, 0), App.Vector(9.71, 9.97, 0)),
    Part.LineSegment(App.Vector(9.71, 9.97, 0), App.Vector(11.83, 9.97, 0)),
    Part.LineSegment(App.Vector(11.83, 9.97, 0), App.Vector(11.83, 3.93, 0)),
    Part.LineSegment(App.Vector(11.83, 3.93, 0), App.Vector(9.84, 3.93, 0)),
    Part.LineSegment(App.Vector(9.84, 3.93, 0), App.Vector(9.84, 4.25, 0)),
    Part.LineSegment(App.Vector(-10.29, 9.97, 0), App.Vector(-10.29, 4.25, 0)),
    Part.LineSegment(App.Vector(-10.29, 4.25, 0), App.Vector(-10.36, 4.25, 0)),
    Part.LineSegment(App.Vector(-10.36, 4.25, 0), App.Vector(-10.36, 3.93, 0)),
    Part.LineSegment(App.Vector(-10.36, 3.93, 0), App.Vector(-12.9, 3.93, 0)),
    Part.LineSegment(App.Vector(-12.9, 3.93, 0), App.Vector(-12.9, 9.97, 0)),
    Part.LineSegment(App.Vector(-12.9, 9.97, 0), App.Vector(-10.29, 9.97, 0)),
    Part.LineSegment(App.Vector(-10.36, -4.25, 0), App.Vector(-10.29, -4.25, 0)),
    Part.LineSegment(App.Vector(-10.29, -4.25, 0), App.Vector(-10.29, -10.03, 0)),
    Part.LineSegment(App.Vector(-10.29, -10.03, 0), App.Vector(-12.9, -10.03, 0)),
    Part.LineSegment(App.Vector(-12.9, -10.03, 0), App.Vector(-12.9, -3.1, 0)),
    Part.LineSegment(App.Vector(-12.9, -3.1, 0), App.Vector(-10.36, -3.1, 0)),
    Part.LineSegment(App.Vector(-10.36, -3.1, 0), App.Vector(-10.36, -4.25, 0)),
    Part.LineSegment(App.Vector(9.71, -10.03, 0), App.Vector(9.71, -4.25, 0)),
    Part.LineSegment(App.Vector(9.71, -4.25, 0), App.Vector(9.84, -4.25, 0)),
    Part.LineSegment(App.Vector(9.84, -4.25, 0), App.Vector(9.84, -3.1, 0)),
    Part.LineSegment(App.Vector(9.84, -3.1, 0), App.Vector(11.83, -3.1, 0)),
    Part.LineSegment(App.Vector(11.83, -3.1, 0), App.Vector(11.83, -10.03, 0)),
    Part.LineSegment(App.Vector(11.83, -10.03, 0), App.Vector(9.71, -10.03, 0)),
], False)
sketch3.addConstraint([
    Sketcher.Constraint("Coincident", 0, 2, 1, 1),
    Sketcher.Constraint("Coincident", 1, 2, 2, 1),
    Sketcher.Constraint("Coincident", 2, 2, 3, 1),
    Sketcher.Constraint("Coincident", 3, 2, 4, 1),
    Sketcher.Constraint("Coincident", 4, 2, 5, 1),
    Sketcher.Constraint("Coincident", 5, 2, 0, 1),
    Sketcher.Constraint("Coincident", 6, 2, 7, 1),
    Sketcher.Constraint("Coincident", 7, 2, 8, 1),
    Sketcher.Constraint("Coincident", 8, 2, 9, 1),
    Sketcher.Constraint("Coincident", 9, 2, 10, 1),
    Sketcher.Constraint("Coincident", 10, 2, 11, 1),
    Sketcher.Constraint("Coincident", 11, 2, 6, 1),
    Sketcher.Constraint("Coincident", 12, 2, 13, 1),
    Sketcher.Constraint("Coincident", 13, 2, 14, 1),
    Sketcher.Constraint("Coincident", 14, 2, 15, 1),
    Sketcher.Constraint("Coincident", 15, 2, 16, 1),
    Sketcher.Constraint("Coincident", 16, 2, 17, 1),
    Sketcher.Constraint("Coincident", 17, 2, 12, 1),
    Sketcher.Constraint("Coincident", 18, 2, 19, 1),
    Sketcher.Constraint("Coincident", 19, 2, 20, 1),
    Sketcher.Constraint("Coincident", 20, 2, 21, 1),
    Sketcher.Constraint("Coincident", 21, 2, 22, 1),
    Sketcher.Constraint("Coincident", 22, 2, 23, 1),
    Sketcher.Constraint("Coincident", 23, 2, 18, 1),
    Sketcher.Constraint("Horizontal", 0),
    Sketcher.Constraint("Vertical", 1),
    Sketcher.Constraint("Horizontal", 2),
    Sketcher.Constraint("Vertical", 3),
    Sketcher.Constraint("Horizontal", 4),
    Sketcher.Constraint("Vertical", 5),
    Sketcher.Constraint("Vertical", 6),
    Sketcher.Constraint("Horizontal", 7),
    Sketcher.Constraint("Vertical", 8),
    Sketcher.Constraint("Horizontal", 9),
    Sketcher.Constraint("Vertical", 10),
    Sketcher.Constraint("Horizontal", 11),
    Sketcher.Constraint("Horizontal", 12),
    Sketcher.Constraint("Vertical", 13),
    Sketcher.Constraint("Horizontal", 14),
    Sketcher.Constraint("Vertical", 15),
    Sketcher.Constraint("Horizontal", 16),
    Sketcher.Constraint("Vertical", 17),
    Sketcher.Constraint("Vertical", 18),
    Sketcher.Constraint("Horizontal", 19),
    Sketcher.Constraint("Vertical", 20),
    Sketcher.Constraint("Horizontal", 21),
    Sketcher.Constraint("Vertical", 22),
    Sketcher.Constraint("Horizontal", 23),
    Sketcher.Constraint("Symmetric", 6, 2, 12, 2, -1),
    Sketcher.Constraint("Symmetric", 0, 2, 18, 2, -1),
    Sketcher.Constraint("Horizontal", 5, 2, 6, 2),
    Sketcher.Constraint("Horizontal", 4, 2, 8, 2),
    Sketcher.Constraint("Horizontal", 2, 2, 10, 2),
    Sketcher.Constraint("Horizontal", 16, 2, 20, 2),
    Sketcher.Constraint("Horizontal", 14, 2, 22, 2),
    Sketcher.Constraint("Vertical", 10, 2, 14, 2),
    Sketcher.Constraint("Vertical", 8, 2, 16, 2),
    Sketcher.Constraint("Vertical", 5, 2, 19, 2),
    Sketcher.Constraint("Vertical", 3, 2, 21, 2),
    Sketcher.Constraint("DistanceX", 6, 2, 0, 2, Q("20 mm")),
    Sketcher.Constraint("DistanceY", 17, 2, 17, 1, Q("1.15 mm")),
    Sketcher.Constraint("DistanceX", 7, 2, 5, 2, Q("20.2 mm")),
    Sketcher.Constraint("DistanceY", 12, 2, 6, 2, Q("8.5 mm")),
    Sketcher.Constraint("DistanceX", 11, 1, 11, 2, Q("2.606 mm")),
    Sketcher.Constraint("DistanceY", 1, 1, 1, 2, Q("5.724 mm")),
    Sketcher.Constraint("DistanceY", 13, 2, 13, 1, Q("5.776 mm")),
    Sketcher.Constraint("DistanceX", 0, 2, 0, 1, Q("0.1314 mm")),
    Sketcher.Constraint("DistanceX", 2, 1, 2, 2, Q("2.1186 mm")),
    Sketcher.Constraint("DistanceY", 3, 2, 3, 1, Q("6.0456 mm")),
    Sketcher.Constraint("DistanceX", -1, 1, 0, 2, Q("9.7082 mm")),
])
sketch3.setExpression("Constraints[60]", "Params.sketch3_height")
pocket2 = body.newObject("PartDesign::Pocket", "Pocket001")
pocket2.Profile = sketch3
pocket2.setExpression("Length", "Params.pocket2_length")

doc.recompute()
